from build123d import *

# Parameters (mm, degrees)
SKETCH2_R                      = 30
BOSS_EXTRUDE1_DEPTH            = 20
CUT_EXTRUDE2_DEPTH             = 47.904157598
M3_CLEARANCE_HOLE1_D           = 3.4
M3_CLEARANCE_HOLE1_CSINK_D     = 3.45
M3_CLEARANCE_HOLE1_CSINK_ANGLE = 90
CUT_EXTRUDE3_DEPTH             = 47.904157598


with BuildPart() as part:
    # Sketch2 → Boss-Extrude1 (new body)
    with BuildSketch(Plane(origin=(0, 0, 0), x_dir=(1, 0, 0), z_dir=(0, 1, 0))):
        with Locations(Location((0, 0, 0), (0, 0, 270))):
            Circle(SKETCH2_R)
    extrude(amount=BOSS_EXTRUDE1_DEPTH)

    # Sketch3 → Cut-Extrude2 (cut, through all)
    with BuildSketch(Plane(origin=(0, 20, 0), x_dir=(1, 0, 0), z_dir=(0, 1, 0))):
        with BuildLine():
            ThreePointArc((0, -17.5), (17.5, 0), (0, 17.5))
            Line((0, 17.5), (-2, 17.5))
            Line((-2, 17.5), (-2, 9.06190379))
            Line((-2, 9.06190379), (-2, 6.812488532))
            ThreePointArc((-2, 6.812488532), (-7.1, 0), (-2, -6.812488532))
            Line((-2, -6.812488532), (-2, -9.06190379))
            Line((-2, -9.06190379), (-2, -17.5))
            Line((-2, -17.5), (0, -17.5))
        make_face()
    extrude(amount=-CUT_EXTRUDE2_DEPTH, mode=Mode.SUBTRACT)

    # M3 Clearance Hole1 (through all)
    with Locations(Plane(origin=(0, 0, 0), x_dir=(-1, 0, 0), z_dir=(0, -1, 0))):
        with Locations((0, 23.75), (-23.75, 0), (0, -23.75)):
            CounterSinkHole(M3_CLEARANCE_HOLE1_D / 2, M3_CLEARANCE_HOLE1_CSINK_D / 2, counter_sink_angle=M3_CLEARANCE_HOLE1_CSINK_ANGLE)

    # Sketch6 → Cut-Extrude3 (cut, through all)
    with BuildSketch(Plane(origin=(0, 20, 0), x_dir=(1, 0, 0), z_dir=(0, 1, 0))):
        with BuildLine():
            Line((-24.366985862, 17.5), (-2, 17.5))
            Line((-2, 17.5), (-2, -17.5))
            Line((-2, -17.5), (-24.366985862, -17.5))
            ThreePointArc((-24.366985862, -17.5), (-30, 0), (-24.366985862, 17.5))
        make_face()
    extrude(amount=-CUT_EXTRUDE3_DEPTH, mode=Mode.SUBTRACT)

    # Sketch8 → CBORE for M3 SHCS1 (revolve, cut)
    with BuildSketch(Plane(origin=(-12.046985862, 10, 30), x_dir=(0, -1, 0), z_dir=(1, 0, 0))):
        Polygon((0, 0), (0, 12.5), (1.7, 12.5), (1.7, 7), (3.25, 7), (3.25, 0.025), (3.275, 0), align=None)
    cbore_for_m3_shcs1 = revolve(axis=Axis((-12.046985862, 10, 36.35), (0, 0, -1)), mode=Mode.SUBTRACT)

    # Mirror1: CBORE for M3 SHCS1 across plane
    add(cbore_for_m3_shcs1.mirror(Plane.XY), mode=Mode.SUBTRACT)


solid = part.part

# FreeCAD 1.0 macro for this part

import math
import FreeCAD as App
import Part
import Sketcher

V = App.Vector
Q = App.Units.Quantity


def add_polygon(sketch, points):
    """Adds a closed chain of lines whose ends are joined by coincident constraints."""
    first, n = sketch.GeometryCount, len(points)
    for a, b in zip(points, points[1:] + points[:1]):
        sketch.addGeometry(Part.LineSegment(App.Vector(*a, 0), App.Vector(*b, 0)), False)
    for i in range(n):
        sketch.addConstraint(Sketcher.Constraint("Coincident", first + i, 2, first + (i + 1) % n, 1))

doc = App.newDocument("Part")
params = doc.addObject("Spreadsheet::Sheet", "Params")
for row, (alias, value) in enumerate([
    ("sketch1_diameter", "60 mm"),
    ("pad1_length", "20 mm"),
    ("sketch2_radius", "17.5 mm"),
    ("sketch2_radius2", "7.1 mm"),
    ("sketch2_width", "2 mm"),
    ("sketch3_diameter", "3.4 mm"),
    ("hole_diameter", "3.4 mm"),
    ("hole_csink_diameter", "3.45 mm"),
    ("sketch4_radius", "30 mm"),
    ("sketch4_height", "35 mm"),
    ("sketch5_width", "1.7 mm"),
    ("sketch5_height", "12.5 mm"),
    ("sketch5_height2", "5.5 mm"),
    ("sketch5_width2", "1.55 mm"),
    ("groove_angle", "360 deg"),
], start=1):
    params.set(f"A{row}", alias)
    params.set(f"B{row}", "=" + value)
    params.setAlias(f"B{row}", alias)

body = doc.addObject("PartDesign::Body", "Body")

sketch1 = body.newObject("Sketcher::SketchObject", "Sketch")
sketch1.AttachmentSupport = (doc.getObject("XZ_Plane"), [""])
sketch1.MapMode = "FlatFace"
sketch1.addGeometry(Part.Circle(V(0, 0, 0), V(0, 0, 1), 30), False)
sketch1.addConstraint([
    Sketcher.Constraint("Coincident", 0, 3, -1, 1),
    Sketcher.Constraint("Diameter", 0, 60.0),
])
sketch1.setExpression("Constraints[1]", "Params.sketch1_diameter")
pad1 = body.newObject("PartDesign::Pad", "Pad")
pad1.Profile = sketch1
pad1.setExpression("Length", "Params.pad1_length")
pad1.Reversed = True

sketch2 = body.newObject("Sketcher::SketchObject", "Sketch001")
sketch2.AttachmentSupport = (doc.getObject("XZ_Plane"), [""])
sketch2.MapMode = "FlatFace"
sketch2.AttachmentOffset = App.Placement(V(0, 0, -20), App.Rotation())
sketch2.addGeometry([
    Part.ArcOfCircle(Part.Circle(V(0, 0, 0), V(0, 0, 1), 17.5), math.radians(-90), math.radians(90)),
    Part.LineSegment(V(0, -17.5, 0), V(-2, -17.5, 0)),
    Part.LineSegment(V(-2, -17.5, 0), V(-2, -6.812489, 0)),
    Part.ArcOfCircle(Part.Circle(V(0, 0, 0), V(0, 0, 1), 7.1), math.radians(106.361104), math.radians(253.638896)),
    Part.LineSegment(V(-2, 6.812489, 0), V(-2, 17.5, 0)),
    Part.LineSegment(V(-2, 17.5, 0), V(0, 17.5, 0)),
], False)
sketch2.addConstraint([
    Sketcher.Constraint("Tangent", 0, 1, 1, 1),
    Sketcher.Constraint("Coincident", 1, 2, 2, 1),
    Sketcher.Constraint("Coincident", 2, 2, 3, 2),
    Sketcher.Constraint("Coincident", 3, 1, 4, 1),
    Sketcher.Constraint("Coincident", 4, 2, 5, 1),
    Sketcher.Constraint("Tangent", 5, 2, 0, 2),
    Sketcher.Constraint("Horizontal", 1),
    Sketcher.Constraint("Vertical", 2),
    Sketcher.Constraint("Vertical", 4),
    Sketcher.Constraint("Horizontal", 5),
    Sketcher.Constraint("Coincident", 0, 3, -1, 1),
    Sketcher.Constraint("Coincident", 3, 3, -1, 1),
    Sketcher.Constraint("Vertical", 2, 2, 3, 1),
    Sketcher.Constraint("Radius", 0, 17.5),
    Sketcher.Constraint("Radius", 3, 7.1),
    Sketcher.Constraint("DistanceX", 1, 2, 1, 1, 2.0),
])
sketch2.setExpression("Constraints[13]", "Params.sketch2_radius")
sketch2.setExpression("Constraints[14]", "Params.sketch2_radius2")
sketch2.setExpression("Constraints[15]", "Params.sketch2_width")
pocket1 = body.newObject("PartDesign::Pocket", "Pocket")
pocket1.Profile = sketch2
pocket1.Type = "ThroughAll"
pocket1.Reversed = True

sketch3 = body.newObject("Sketcher::SketchObject", "Sketch002")
sketch3.AttachmentSupport = (doc.getObject("XZ_Plane"), [""])
sketch3.MapMode = "FlatFace"
sketch3.addGeometry([
    Part.Circle(V(0, -23.75, 0), V(0, 0, 1), 1.7),
    Part.Circle(V(23.75, 0, 0), V(0, 0, 1), 1.7),
    Part.Circle(V(0, 23.75, 0), V(0, 0, 1), 1.7),
], False)
sketch3.addConstraint([
    Sketcher.Constraint("Equal", 0, 1),
    Sketcher.Constraint("Equal", 1, 2),
    Sketcher.Constraint("Symmetric", 0, 3, 2, 3, -1, 1),
    Sketcher.Constraint("PointOnObject", 0, 3, -2),
    Sketcher.Constraint("PointOnObject", 1, 3, -1),
    Sketcher.Constraint("Diameter", 0, 3.4),
    Sketcher.Constraint("DistanceY", 0, 3, 2, 3, 47.5),
    Sketcher.Constraint("DistanceX", -1, 1, 1, 3, 23.75),
])
sketch3.setExpression("Constraints[5]", "Params.sketch3_diameter")
doc.recompute()
hole = body.newObject("PartDesign::Hole", "Hole")
hole.Profile = sketch3
hole.ThreadType = "None"
hole.setExpression("Diameter", "Params.hole_diameter")
hole.DepthType = "ThroughAll"
hole.HoleCutType = "Countersink"
hole.setExpression("HoleCutDiameter", "Params.hole_csink_diameter")
hole.HoleCutCountersinkAngle = 90

sketch4 = body.newObject("Sketcher::SketchObject", "Sketch003")
sketch4.AttachmentSupport = (doc.getObject("XZ_Plane"), [""])
sketch4.MapMode = "FlatFace"
sketch4.AttachmentOffset = App.Placement(V(0, 0, -20), App.Rotation())
sketch4.addGeometry([
    Part.LineSegment(V(-2, -17.5, 0), V(-24.366986, -17.5, 0)),
    Part.ArcOfCircle(Part.Circle(V(0, 0, 0), V(0, 0, 1), 30), math.radians(144.314665), math.radians(215.685335)),
    Part.LineSegment(V(-24.366986, 17.5, 0), V(-2, 17.5, 0)),
    Part.LineSegment(V(-2, 17.5, 0), V(-2, -17.5, 0)),
], False)
sketch4.addConstraint([
    Sketcher.Constraint("Coincident", 0, 2, 1, 2),
    Sketcher.Constraint("Coincident", 1, 1, 2, 1),
    Sketcher.Constraint("Coincident", 2, 2, 3, 1),
    Sketcher.Constraint("Coincident", 3, 2, 0, 1),
    Sketcher.Constraint("Horizontal", 0),
    Sketcher.Constraint("Horizontal", 2),
    Sketcher.Constraint("Vertical", 3),
    Sketcher.Constraint("Coincident", 1, 3, -1, 1),
    Sketcher.Constraint("Vertical", 0, 2, 1, 1),
    Sketcher.Constraint("Radius", 1, 30.0),
    Sketcher.Constraint("DistanceY", 3, 2, 3, 1, 35.0),
    Sketcher.Constraint("DistanceX", 2, 2, -1, 1, 2.0),
])
sketch4.setExpression("Constraints[9]", "Params.sketch4_radius")
sketch4.setExpression("Constraints[10]", "Params.sketch4_height")
pocket2 = body.newObject("PartDesign::Pocket", "Pocket001")
pocket2.Profile = sketch4
pocket2.Type = "ThroughAll"
pocket2.Reversed = True

sketch5 = body.newObject("Sketcher::SketchObject", "Sketch004")
sketch5.AttachmentSupport = (doc.getObject("YZ_Plane"), [""])
sketch5.MapMode = "FlatFace"
sketch5.AttachmentOffset = App.Placement(V(0, 0, -12.046986), App.Rotation())
add_polygon(sketch5, [(10, 17.5), (10, 30), (6.725, 30), (6.75, 29.975), (6.75, 23), (8.3, 23), (8.3, 17.5)])
sketch5.addGeometry(Part.LineSegment(V(10, 30, 0), V(10, 17.5, 0)), True)
sketch5.addConstraint([
    Sketcher.Constraint("Vertical", 0),
    Sketcher.Constraint("Horizontal", 1),
    Sketcher.Constraint("Vertical", 3),
    Sketcher.Constraint("Horizontal", 4),
    Sketcher.Constraint("Vertical", 5),
    Sketcher.Constraint("Horizontal", 6),
    Sketcher.Constraint("Vertical", 7),
    Sketcher.Constraint("Coincident", 7, 1, 0, 2),
    Sketcher.Constraint("Horizontal", 5, 2, 7, 2),
    Sketcher.Constraint("Angle", 2, Q("-45 deg")),
    Sketcher.Constraint("DistanceX", 6, 1, 6, 2, 1.7),
    Sketcher.Constraint("DistanceY", 0, 1, 0, 2, 12.5),
    Sketcher.Constraint("DistanceY", 5, 2, 5, 1, 5.5),
    Sketcher.Constraint("DistanceX", -1, 1, 0, 2, 10.0),
    Sketcher.Constraint("DistanceY", -1, 1, 0, 2, 30.0),
    Sketcher.Constraint("DistanceX", 4, 1, 4, 2, 1.55),
    Sketcher.Constraint("DistanceX", 1, 2, 1, 1, 3.275),
])
sketch5.setExpression("Constraints[17]", "Params.sketch5_width")
sketch5.setExpression("Constraints[18]", "Params.sketch5_height")
sketch5.setExpression("Constraints[19]", "Params.sketch5_height2")
sketch5.setExpression("Constraints[22]", "Params.sketch5_width2")
groove = body.newObject("PartDesign::Groove", "Groove")
groove.Profile = sketch5
groove.ReferenceAxis = (sketch5, ["Axis0"])
groove.setExpression("Angle", "Params.groove_angle")
doc.recompute()

mirrored = body.newObject("PartDesign::Mirrored", "Mirrored")
mirrored.Originals = [groove]
mirrored.MirrorPlane = (doc.getObject("XY_Plane"), [""])
body.Tip = mirrored

doc.recompute()
